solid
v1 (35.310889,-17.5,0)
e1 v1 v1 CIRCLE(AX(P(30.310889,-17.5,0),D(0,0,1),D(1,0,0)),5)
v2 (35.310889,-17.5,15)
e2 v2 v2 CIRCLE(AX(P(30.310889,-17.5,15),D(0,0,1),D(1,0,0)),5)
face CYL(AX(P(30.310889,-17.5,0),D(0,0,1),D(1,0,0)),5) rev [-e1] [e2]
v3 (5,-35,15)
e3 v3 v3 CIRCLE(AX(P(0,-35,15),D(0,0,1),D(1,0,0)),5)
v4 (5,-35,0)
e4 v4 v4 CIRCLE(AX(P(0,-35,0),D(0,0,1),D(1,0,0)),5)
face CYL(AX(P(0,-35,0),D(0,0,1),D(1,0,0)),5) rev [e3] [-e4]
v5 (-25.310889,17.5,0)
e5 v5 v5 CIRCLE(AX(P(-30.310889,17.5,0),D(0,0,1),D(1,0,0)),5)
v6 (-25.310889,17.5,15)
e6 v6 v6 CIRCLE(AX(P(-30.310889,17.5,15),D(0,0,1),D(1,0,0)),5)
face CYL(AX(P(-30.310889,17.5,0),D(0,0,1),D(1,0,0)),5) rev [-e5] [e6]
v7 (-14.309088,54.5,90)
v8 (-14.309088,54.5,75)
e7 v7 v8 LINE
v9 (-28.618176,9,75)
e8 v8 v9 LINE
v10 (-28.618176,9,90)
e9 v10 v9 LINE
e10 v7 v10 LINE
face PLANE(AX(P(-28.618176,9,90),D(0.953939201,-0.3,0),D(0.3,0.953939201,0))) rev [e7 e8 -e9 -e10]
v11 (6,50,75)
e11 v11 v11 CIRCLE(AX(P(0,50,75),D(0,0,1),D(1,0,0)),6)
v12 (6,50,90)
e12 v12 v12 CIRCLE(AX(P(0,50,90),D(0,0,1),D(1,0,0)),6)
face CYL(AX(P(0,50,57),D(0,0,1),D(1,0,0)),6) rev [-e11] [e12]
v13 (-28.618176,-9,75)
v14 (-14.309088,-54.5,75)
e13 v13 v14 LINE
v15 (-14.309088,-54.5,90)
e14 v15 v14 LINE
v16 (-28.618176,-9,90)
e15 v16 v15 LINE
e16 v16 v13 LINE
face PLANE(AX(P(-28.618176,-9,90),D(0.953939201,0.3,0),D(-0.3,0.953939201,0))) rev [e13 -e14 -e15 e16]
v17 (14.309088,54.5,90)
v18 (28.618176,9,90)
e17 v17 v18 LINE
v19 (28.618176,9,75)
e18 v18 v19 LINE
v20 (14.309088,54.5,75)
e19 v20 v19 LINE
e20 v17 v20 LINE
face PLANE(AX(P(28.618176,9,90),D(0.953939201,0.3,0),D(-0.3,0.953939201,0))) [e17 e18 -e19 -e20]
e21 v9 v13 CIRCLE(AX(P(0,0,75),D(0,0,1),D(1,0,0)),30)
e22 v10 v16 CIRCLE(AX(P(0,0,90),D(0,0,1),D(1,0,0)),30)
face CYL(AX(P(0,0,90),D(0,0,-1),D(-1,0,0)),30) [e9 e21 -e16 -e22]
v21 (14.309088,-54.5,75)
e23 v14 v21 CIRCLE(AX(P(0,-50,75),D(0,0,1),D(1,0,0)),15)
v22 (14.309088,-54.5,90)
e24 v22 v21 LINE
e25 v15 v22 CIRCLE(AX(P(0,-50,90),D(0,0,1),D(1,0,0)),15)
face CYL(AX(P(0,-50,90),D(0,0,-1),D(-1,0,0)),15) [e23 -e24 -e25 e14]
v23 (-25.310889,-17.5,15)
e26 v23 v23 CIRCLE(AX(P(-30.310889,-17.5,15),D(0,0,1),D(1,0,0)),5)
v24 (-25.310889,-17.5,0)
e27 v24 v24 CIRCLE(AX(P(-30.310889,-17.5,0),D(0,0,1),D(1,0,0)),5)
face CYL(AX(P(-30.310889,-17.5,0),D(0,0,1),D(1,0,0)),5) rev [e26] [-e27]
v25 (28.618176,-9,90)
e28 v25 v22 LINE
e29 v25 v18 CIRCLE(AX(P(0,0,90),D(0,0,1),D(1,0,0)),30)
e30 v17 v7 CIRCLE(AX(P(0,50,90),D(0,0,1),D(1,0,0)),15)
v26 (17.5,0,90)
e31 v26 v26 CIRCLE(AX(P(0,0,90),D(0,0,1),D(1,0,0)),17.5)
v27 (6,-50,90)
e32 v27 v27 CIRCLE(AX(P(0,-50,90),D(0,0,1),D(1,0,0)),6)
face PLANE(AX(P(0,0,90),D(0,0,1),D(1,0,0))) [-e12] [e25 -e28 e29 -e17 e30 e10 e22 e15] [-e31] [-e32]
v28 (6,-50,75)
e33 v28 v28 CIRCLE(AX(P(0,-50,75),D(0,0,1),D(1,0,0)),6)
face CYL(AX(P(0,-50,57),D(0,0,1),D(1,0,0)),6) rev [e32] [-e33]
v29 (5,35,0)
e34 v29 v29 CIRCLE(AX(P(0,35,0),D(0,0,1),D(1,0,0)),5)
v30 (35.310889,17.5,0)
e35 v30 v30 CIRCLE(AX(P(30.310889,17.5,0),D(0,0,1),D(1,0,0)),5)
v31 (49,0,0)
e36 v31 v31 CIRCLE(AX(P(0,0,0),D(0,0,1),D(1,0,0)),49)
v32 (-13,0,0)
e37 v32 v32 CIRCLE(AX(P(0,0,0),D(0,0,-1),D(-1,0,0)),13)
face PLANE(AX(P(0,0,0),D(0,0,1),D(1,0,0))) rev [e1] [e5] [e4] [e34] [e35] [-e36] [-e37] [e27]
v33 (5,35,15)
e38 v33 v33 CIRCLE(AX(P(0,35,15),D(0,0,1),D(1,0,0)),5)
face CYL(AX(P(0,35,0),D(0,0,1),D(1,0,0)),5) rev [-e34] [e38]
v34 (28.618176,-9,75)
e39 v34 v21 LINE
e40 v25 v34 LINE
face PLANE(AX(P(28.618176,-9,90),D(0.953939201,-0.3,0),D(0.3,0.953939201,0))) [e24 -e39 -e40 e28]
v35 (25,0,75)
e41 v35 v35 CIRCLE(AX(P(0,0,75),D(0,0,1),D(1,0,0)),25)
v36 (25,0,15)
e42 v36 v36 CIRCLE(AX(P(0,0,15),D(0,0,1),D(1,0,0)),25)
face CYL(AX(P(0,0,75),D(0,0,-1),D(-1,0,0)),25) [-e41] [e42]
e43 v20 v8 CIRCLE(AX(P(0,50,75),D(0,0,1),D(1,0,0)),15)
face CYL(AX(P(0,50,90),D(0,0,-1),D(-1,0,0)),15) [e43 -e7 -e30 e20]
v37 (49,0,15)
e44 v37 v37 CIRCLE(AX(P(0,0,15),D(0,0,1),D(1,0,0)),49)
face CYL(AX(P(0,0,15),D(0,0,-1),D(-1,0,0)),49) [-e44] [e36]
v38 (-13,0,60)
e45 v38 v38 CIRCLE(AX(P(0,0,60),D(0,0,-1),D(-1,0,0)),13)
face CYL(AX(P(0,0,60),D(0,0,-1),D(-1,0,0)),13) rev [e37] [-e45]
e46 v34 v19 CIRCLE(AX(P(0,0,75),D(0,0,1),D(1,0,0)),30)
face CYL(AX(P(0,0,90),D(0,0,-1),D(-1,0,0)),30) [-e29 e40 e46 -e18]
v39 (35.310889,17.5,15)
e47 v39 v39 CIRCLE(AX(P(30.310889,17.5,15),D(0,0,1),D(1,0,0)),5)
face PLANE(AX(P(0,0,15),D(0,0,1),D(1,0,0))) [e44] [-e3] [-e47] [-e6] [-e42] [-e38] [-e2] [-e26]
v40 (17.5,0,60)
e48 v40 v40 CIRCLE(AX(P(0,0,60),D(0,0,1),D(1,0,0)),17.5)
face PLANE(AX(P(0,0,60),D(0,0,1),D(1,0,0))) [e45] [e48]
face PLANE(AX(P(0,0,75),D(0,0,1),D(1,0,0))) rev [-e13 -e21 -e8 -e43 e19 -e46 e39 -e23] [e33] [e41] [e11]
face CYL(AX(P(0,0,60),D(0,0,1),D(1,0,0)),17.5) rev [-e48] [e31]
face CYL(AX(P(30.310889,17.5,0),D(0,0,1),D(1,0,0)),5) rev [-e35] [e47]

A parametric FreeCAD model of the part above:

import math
import FreeCAD as App
import Part
import Sketcher

V = App.Vector
Q = App.Units.Quantity

doc = App.newDocument("Part")
body = doc.addObject("PartDesign::Body", "Body")

sketch1 = body.newObject("Sketcher::SketchObject", "Sketch")
sketch1.AttachmentSupport = (doc.getObject("XY_Plane"), [""])
sketch1.MapMode = "FlatFace"
sketch1.addGeometry(Part.Circle(V(0, 0, 0), V(0, 0, 1), 49), False)
sketch1.addConstraint(Sketcher.Constraint("Coincident", 0, 3, -1, 1))
sketch1.addConstraint(Sketcher.Constraint("Diameter", 0, Q("98 mm")))
pad1 = body.newObject("PartDesign::Pad", "Pad")
pad1.Profile = sketch1
pad1.Length = 15

sketch2 = body.newObject("Sketcher::SketchObject", "Sketch001")
sketch2.AttachmentSupport = (doc.getObject("XY_Plane"), [""])
sketch2.MapMode = "FlatFace"
sketch2.AttachmentOffset = App.Placement(V(0, 0, 15), App.Rotation())
sketch2.addGeometry(Part.Circle(V(0, 35, 0), V(0, 0, 1), 5), False)
sketch2.addGeometry(Part.Circle(V(30.310889, 17.5, 0), V(0, 0, 1), 5), False)
sketch2.addGeometry(Part.Circle(V(30.310889, -17.5, 0), V(0, 0, 1), 5), False)
sketch2.addGeometry(Part.Circle(V(0, -35, 0), V(0, 0, 1), 5), False)
sketch2.addGeometry(Part.Circle(V(-30.310889, -17.5, 0), V(0, 0, 1), 5), False)
sketch2.addGeometry(Part.Circle(V(-30.310889, 17.5, 0), V(0, 0, 1), 5), False)
sketch2.addConstraint(Sketcher.Constraint("Equal", 0, 1))
sketch2.addConstraint(Sketcher.Constraint("Equal", 1, 2))
sketch2.addConstraint(Sketcher.Constraint("Equal", 2, 3))
sketch2.addConstraint(Sketcher.Constraint("Equal", 3, 4))
sketch2.addConstraint(Sketcher.Constraint("Equal", 4, 5))
sketch2.addConstraint(Sketcher.Constraint("Symmetric", 0, 3, 3, 3, -1, 1))
sketch2.addConstraint(Sketcher.Constraint("Symmetric", 1, 3, 4, 3, -1, 1))
sketch2.addConstraint(Sketcher.Constraint("Symmetric", 2, 3, 5, 3, -1, 1))
sketch2.addConstraint(Sketcher.Constraint("Symmetric", 2, 3, 4, 3, -2))
sketch2.addConstraint(Sketcher.Constraint("PointOnObject", 0, 3, -2))
sketch2.addConstraint(Sketcher.Constraint("Diameter", 0, Q("10 mm")))
sketch2.addConstraint(Sketcher.Constraint("DistanceY", -1, 1, 0, 3, Q("35 mm")))
sketch2.addConstraint(Sketcher.Constraint("DistanceY", 2, 3, 1, 3, Q("35 mm")))
sketch2.addConstraint(Sketcher.Constraint("DistanceX", -1, 1, 1, 3, Q("30.310889 mm")))
pocket1 = body.newObject("PartDesign::Pocket", "Pocket")
pocket1.Profile = sketch2
pocket1.Type = "ThroughAll"

sketch3 = body.newObject("Sketcher::SketchObject", "Sketch002")
sketch3.AttachmentSupport = (doc.getObject("XY_Plane"), [""])
sketch3.MapMode = "FlatFace"
sketch3.AttachmentOffset = App.Placement(V(0, 0, 15), App.Rotation())
sketch3.addGeometry(Part.Circle(V(0, 0, 0), V(0, 0, 1), 25), False)
sketch3.addConstraint(Sketcher.Constraint("Coincident", 0, 3, -1, 1))
sketch3.addConstraint(Sketcher.Constraint("Diameter", 0, Q("50 mm")))
pad2 = body.newObject("PartDesign::Pad", "Pad001")
pad2.Profile = sketch3
pad2.Length = 60

sketch4 = body.newObject("Sketcher::SketchObject", "Sketch003")
sketch4.AttachmentSupport = (doc.getObject("XY_Plane"), [""])
sketch4.MapMode = "FlatFace"
sketch4.AttachmentOffset = App.Placement(V(0, 0, 75), App.Rotation())
sketch4.addGeometry(Part.ArcOfCircle(Part.Circle(V(0, 50, 0), V(0, 0, 1), 15), math.radians(17.457603), math.radians(162.542397)), False)
sketch4.addGeometry(Part.LineSegment(V(-14.309088, 54.5, 0), V(-28.618176, 9, 0)), False)
sketch4.addGeometry(Part.ArcOfCircle(Part.Circle(V(0, 0, 0), V(0, 0, 1), 30), math.radians(162.542397), math.radians(197.457603)), False)
sketch4.addGeometry(Part.LineSegment(V(-28.618176, -9, 0), V(-14.309088, -54.5, 0)), False)
sketch4.addGeometry(Part.ArcOfCircle(Part.Circle(V(0, -50, 0), V(0, 0, 1), 15), math.radians(-162.542397), math.radians(-17.457603)), False)
sketch4.addGeometry(Part.LineSegment(V(14.309088, -54.5, 0), V(28.618176, -9, 0)), False)
sketch4.addGeometry(Part.ArcOfCircle(Part.Circle(V(0, 0, 0), V(0, 0, 1), 30), math.radians(-17.457603), math.radians(17.457603)), False)
sketch4.addGeometry(Part.LineSegment(V(28.618176, 9, 0), V(14.309088, 54.5, 0)), False)
sketch4.addConstraint(Sketcher.Constraint("Tangent", 0, 2, 1, 1))
sketch4.addConstraint(Sketcher.Constraint("Tangent", 1, 2, 2, 1))
sketch4.addConstraint(Sketcher.Constraint("Tangent", 2, 2, 3, 1))
sketch4.addConstraint(Sketcher.Constraint("Tangent", 3, 2, 4, 1))
sketch4.addConstraint(Sketcher.Constraint("Tangent", 4, 2, 5, 1))
sketch4.addConstraint(Sketcher.Constraint("Tangent", 5, 2, 6, 1))
sketch4.addConstraint(Sketcher.Constraint("Tangent", 6, 2, 7, 1))
sketch4.addConstraint(Sketcher.Constraint("Tangent", 7, 2, 0, 1))
sketch4.addConstraint(Sketcher.Constraint("Coincident", 2, 3, -1, 1))
sketch4.addConstraint(Sketcher.Constraint("Coincident", 6, 3, -1, 1))
sketch4.addConstraint(Sketcher.Constraint("Equal", 0, 4))
sketch4.addConstraint(Sketcher.Constraint("Equal", 2, 6))
sketch4.addConstraint(Sketcher.Constraint("Symmetric", 0, 3, 4, 3, -1, 1))
sketch4.addConstraint(Sketcher.Constraint("PointOnObject", 0, 3, -2))
sketch4.addConstraint(Sketcher.Constraint("Radius", 0, Q("15 mm")))
sketch4.addConstraint(Sketcher.Constraint("Radius", 2, Q("30 mm")))
sketch4.addConstraint(Sketcher.Constraint("DistanceY", -1, 1, 0, 3, Q("50 mm")))
pad3 = body.newObject("PartDesign::Pad", "Pad002")
pad3.Profile = sketch4
pad3.Length = 15

sketch5 = body.newObject("Sketcher::SketchObject", "Sketch004")
sketch5.AttachmentSupport = (doc.getObject("XY_Plane"), [""])
sketch5.MapMode = "FlatFace"
sketch5.AttachmentOffset = App.Placement(V(0, 0, 90), App.Rotation())
sketch5.addGeometry(Part.Circle(V(0, 50, 0), V(0, 0, 1), 6), False)
sketch5.addGeometry(Part.Circle(V(0, -50, 0), V(0, 0, 1), 6), False)
sketch5.addConstraint(Sketcher.Constraint("Equal", 0, 1))
sketch5.addConstraint(Sketcher.Constraint("Symmetric", 0, 3, 1, 3, -1, 1))
sketch5.addConstraint(Sketcher.Constraint("PointOnObject", 0, 3, -2))
sketch5.addConstraint(Sketcher.Constraint("Diameter", 0, Q("12 mm")))
sketch5.addConstraint(Sketcher.Constraint("DistanceY", -1, 1, 0, 3, Q("50 mm")))
pocket2 = body.newObject("PartDesign::Pocket", "Pocket001")
pocket2.Profile = sketch5
pocket2.Length = 33

sketch6 = body.newObject("Sketcher::SketchObject", "Sketch005")
sketch6.AttachmentSupport = (doc.getObject("XY_Plane"), [""])
sketch6.MapMode = "FlatFace"
sketch6.AttachmentOffset = App.Placement(V(0, 0, 90), App.Rotation())
sketch6.addGeometry(Part.Circle(V(0, 50, 0), V(0, 0, 1), 6), False)
sketch6.addGeometry(Part.Circle(V(0, -50, 0), V(0, 0, 1), 6), False)
sketch6.addGeometry(Part.Circle(V(0, 0, 0), V(0, 0, 1), 17.5), False)
sketch6.addConstraint(Sketcher.Constraint("Coincident", 2, 3, -1, 1))
sketch6.addConstraint(Sketcher.Constraint("Equal", 0, 1))
sketch6.addConstraint(Sketcher.Constraint("Symmetric", 0, 3, 1, 3, -1, 1))
sketch6.addConstraint(Sketcher.Constraint("PointOnObject", 0, 3, -2))
sketch6.addConstraint(Sketcher.Constraint("Diameter", 0, Q("12 mm")))
sketch6.addConstraint(Sketcher.Constraint("Diameter", 2, Q("35 mm")))
sketch6.addConstraint(Sketcher.Constraint("DistanceY", -1, 1, 0, 3, Q("50 mm")))
pocket3 = body.newObject("PartDesign::Pocket", "Pocket002")
pocket3.Profile = sketch6
pocket3.Length = 30

sketch7 = body.newObject("Sketcher::SketchObject", "Sketch006")
sketch7.AttachmentSupport = (doc.getObject("XY_Plane"), [""])
sketch7.MapMode = "FlatFace"
sketch7.addGeometry(Part.Circle(V(0, 0, 0), V(0, 0, 1), 13), False)
sketch7.addConstraint(Sketcher.Constraint("Coincident", 0, 3, -1, 1))
sketch7.addConstraint(Sketcher.Constraint("Diameter", 0, Q("26 mm")))
pocket4 = body.newObject("PartDesign::Pocket", "Pocket003")
pocket4.Profile = sketch7
pocket4.Length = 60
pocket4.Reversed = True

doc.recompute()
